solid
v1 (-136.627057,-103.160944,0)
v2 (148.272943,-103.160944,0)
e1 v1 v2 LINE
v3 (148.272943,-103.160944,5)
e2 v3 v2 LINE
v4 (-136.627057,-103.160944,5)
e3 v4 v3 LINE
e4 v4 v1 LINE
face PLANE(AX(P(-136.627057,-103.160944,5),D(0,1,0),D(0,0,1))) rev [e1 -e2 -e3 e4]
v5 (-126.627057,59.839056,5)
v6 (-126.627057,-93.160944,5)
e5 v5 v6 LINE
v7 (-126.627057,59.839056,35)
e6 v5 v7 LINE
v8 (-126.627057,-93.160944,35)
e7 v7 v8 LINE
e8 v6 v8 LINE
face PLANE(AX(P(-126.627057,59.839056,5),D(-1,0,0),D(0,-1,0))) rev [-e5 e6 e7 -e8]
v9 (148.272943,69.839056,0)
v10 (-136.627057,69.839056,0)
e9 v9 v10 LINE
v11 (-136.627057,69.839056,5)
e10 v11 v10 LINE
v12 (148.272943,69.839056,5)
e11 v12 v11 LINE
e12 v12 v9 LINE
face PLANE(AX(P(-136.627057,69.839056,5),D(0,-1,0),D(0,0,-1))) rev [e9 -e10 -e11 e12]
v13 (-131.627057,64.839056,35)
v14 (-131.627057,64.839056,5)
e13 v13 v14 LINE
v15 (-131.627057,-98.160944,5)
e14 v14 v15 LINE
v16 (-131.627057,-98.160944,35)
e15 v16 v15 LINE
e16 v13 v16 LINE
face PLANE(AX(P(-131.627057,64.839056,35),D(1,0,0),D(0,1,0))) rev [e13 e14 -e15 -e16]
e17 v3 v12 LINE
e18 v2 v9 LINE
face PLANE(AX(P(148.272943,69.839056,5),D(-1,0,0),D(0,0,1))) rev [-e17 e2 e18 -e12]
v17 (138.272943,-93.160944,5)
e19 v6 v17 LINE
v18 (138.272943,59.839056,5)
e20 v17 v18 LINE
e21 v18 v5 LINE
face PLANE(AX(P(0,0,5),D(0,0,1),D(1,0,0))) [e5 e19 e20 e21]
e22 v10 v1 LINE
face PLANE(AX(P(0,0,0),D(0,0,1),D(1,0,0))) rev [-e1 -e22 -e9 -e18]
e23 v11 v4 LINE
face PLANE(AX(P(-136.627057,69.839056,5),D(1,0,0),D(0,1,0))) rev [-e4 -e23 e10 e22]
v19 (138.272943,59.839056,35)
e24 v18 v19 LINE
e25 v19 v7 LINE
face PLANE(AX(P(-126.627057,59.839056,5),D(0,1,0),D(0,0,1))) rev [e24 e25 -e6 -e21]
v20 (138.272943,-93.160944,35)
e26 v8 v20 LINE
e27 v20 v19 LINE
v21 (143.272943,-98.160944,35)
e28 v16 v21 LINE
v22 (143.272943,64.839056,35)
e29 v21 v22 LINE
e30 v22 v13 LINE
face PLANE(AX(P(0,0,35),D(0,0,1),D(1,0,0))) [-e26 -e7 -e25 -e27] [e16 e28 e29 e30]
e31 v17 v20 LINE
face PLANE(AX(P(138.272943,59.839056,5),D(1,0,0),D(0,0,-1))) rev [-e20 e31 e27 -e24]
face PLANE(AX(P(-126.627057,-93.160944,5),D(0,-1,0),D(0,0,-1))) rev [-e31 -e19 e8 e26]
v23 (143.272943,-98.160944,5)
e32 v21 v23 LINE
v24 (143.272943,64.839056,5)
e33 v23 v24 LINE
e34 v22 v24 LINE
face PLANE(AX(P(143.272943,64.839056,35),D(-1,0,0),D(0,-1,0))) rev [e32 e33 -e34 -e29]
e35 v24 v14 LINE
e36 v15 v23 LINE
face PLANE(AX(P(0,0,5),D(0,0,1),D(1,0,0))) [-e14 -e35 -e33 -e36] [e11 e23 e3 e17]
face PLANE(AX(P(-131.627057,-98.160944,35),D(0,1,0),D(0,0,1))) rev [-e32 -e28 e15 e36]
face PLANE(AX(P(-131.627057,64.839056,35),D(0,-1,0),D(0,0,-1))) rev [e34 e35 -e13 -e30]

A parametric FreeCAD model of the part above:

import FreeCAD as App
import Part
import Sketcher

V = App.Vector

doc = App.newDocument("Part")
body = doc.addObject("PartDesign::Body", "Body")

# Sketch on XY plane
sketch1 = body.newObject("Sketcher::SketchObject", "Sketch")
sketch1.AttachmentSupport = (doc.getObject("XY_Plane"), [""])
sketch1.MapMode = "FlatFace"
sketch1.addGeometry(Part.LineSegment(V(-137, 70, 0), V(-137, -103, 0)), False)
sketch1.addGeometry(Part.LineSegment(V(-137, -103, 0), V(148, -103, 0)), False)
sketch1.addGeometry(Part.LineSegment(V(148, -103, 0), V(148, 70, 0)), False)
sketch1.addGeometry(Part.LineSegment(V(148, 70, 0), V(-137, 70, 0)), False)
sketch1.addConstraint(Sketcher.Constraint("Coincident", 0, 2, 1, 1))
sketch1.addConstraint(Sketcher.Constraint("Coincident", 1, 2, 2, 1))
sketch1.addConstraint(Sketcher.Constraint("Coincident", 2, 2, 3, 1))
sketch1.addConstraint(Sketcher.Constraint("Coincident", 3, 2, 0, 1))
sketch1.addConstraint(Sketcher.Constraint("Vertical", 0))
sketch1.addConstraint(Sketcher.Constraint("Horizontal", 1))
sketch1.addConstraint(Sketcher.Constraint("Vertical", 2))
sketch1.addConstraint(Sketcher.Constraint("Horizontal", 3))
sketch1.addConstraint(Sketcher.Constraint("DistanceY", 0, 2, 0, 1, 173.0))
sketch1.addConstraint(Sketcher.Constraint("DistanceX", 1, 1, 1, 2, 284.9))
sketch1.addConstraint(Sketcher.Constraint("DistanceX", 0, 2, -1, 1, 136.627057))
sketch1.addConstraint(Sketcher.Constraint("DistanceY", 0, 2, -1, 1, 103.160944))
pad1 = body.newObject("PartDesign::Pad", "Pad")
pad1.Profile = sketch1
pad1.Length = 5

# Sketch on XY plane
sketch2 = body.newObject("Sketcher::SketchObject", "Sketch001")
sketch2.AttachmentSupport = (doc.getObject("XY_Plane"), [""])
sketch2.MapMode = "FlatFace"
sketch2.AttachmentOffset = App.Placement(V(0, 0, 5), App.Rotation())
sketch2.addGeometry(Part.LineSegment(V(-132, 65, 0), V(-132, -98, 0)), False)
sketch2.addGeometry(Part.LineSegment(V(-132, -98, 0), V(143, -98, 0)), False)
sketch2.addGeometry(Part.LineSegment(V(143, -98, 0), V(143, 65, 0)), False)
sketch2.addGeometry(Part.LineSegment(V(143, 65, 0), V(-132, 65, 0)), False)
sketch2.addConstraint(Sketcher.Constraint("Coincident", 0, 2, 1, 1))
sketch2.addConstraint(Sketcher.Constraint("Coincident", 1, 2, 2, 1))
sketch2.addConstraint(Sketcher.Constraint("Coincident", 2, 2, 3, 1))
sketch2.addConstraint(Sketcher.Constraint("Coincident", 3, 2, 0, 1))
sketch2.addConstraint(Sketcher.Constraint("Vertical", 0))
sketch2.addConstraint(Sketcher.Constraint("Horizontal", 1))
sketch2.addConstraint(Sketcher.Constraint("Vertical", 2))
sketch2.addConstraint(Sketcher.Constraint("Horizontal", 3))
sketch2.addConstraint(Sketcher.Constraint("DistanceY", 0, 2, 0, 1, 163.0))
sketch2.addConstraint(Sketcher.Constraint("DistanceX", 1, 1, 1, 2, 274.9))
sketch2.addConstraint(Sketcher.Constraint("DistanceX", 0, 2, -1, 1, 131.627057))
sketch2.addConstraint(Sketcher.Constraint("DistanceY", 0, 2, -1, 1, 98.160944))
pad2 = body.newObject("PartDesign::Pad", "Pad001")
pad2.Profile = sketch2
pad2.Length = 30

# Sketch on XY plane
sketch3 = body.newObject("Sketcher::SketchObject", "Sketch002")
sketch3.AttachmentSupport = (doc.getObject("XY_Plane"), [""])
sketch3.MapMode = "FlatFace"
sketch3.AttachmentOffset = App.Placement(V(0, 0, 35), App.Rotation())
sketch3.addGeometry(Part.LineSegment(V(-127, 60, 0), V(-127, -93, 0)), False)
sketch3.addGeometry(Part.LineSegment(V(-127, -93, 0), V(138, -93, 0)), False)
sketch3.addGeometry(Part.LineSegment(V(138, -93, 0), V(138, 60, 0)), False)
sketch3.addGeometry(Part.LineSegment(V(138, 60, 0), V(-127, 60, 0)), False)
sketch3.addConstraint(Sketcher.Constraint("Coincident", 0, 2, 1, 1))
sketch3.addConstraint(Sketcher.Constraint("Coincident", 1, 2, 2, 1))
sketch3.addConstraint(Sketcher.Constraint("Coincident", 2, 2, 3, 1))
sketch3.addConstraint(Sketcher.Constraint("Coincident", 3, 2, 0, 1))
sketch3.addConstraint(Sketcher.Constraint("Vertical", 0))
sketch3.addConstraint(Sketcher.Constraint("Horizontal", 1))
sketch3.addConstraint(Sketcher.Constraint("Vertical", 2))
sketch3.addConstraint(Sketcher.Constraint("Horizontal", 3))
sketch3.addConstraint(Sketcher.Constraint("DistanceY", 0, 2, 0, 1, 153.0))
sketch3.addConstraint(Sketcher.Constraint("DistanceX", 1, 1, 1, 2, 264.9))
sketch3.addConstraint(Sketcher.Constraint("DistanceX", 0, 2, -1, 1, 126.627057))
sketch3.addConstraint(Sketcher.Constraint("DistanceY", 0, 2, -1, 1, 93.160944))
pocket1 = body.newObject("PartDesign::Pocket", "Pocket")
pocket1.Profile = sketch3
pocket1.Length = 30

doc.recompute()
